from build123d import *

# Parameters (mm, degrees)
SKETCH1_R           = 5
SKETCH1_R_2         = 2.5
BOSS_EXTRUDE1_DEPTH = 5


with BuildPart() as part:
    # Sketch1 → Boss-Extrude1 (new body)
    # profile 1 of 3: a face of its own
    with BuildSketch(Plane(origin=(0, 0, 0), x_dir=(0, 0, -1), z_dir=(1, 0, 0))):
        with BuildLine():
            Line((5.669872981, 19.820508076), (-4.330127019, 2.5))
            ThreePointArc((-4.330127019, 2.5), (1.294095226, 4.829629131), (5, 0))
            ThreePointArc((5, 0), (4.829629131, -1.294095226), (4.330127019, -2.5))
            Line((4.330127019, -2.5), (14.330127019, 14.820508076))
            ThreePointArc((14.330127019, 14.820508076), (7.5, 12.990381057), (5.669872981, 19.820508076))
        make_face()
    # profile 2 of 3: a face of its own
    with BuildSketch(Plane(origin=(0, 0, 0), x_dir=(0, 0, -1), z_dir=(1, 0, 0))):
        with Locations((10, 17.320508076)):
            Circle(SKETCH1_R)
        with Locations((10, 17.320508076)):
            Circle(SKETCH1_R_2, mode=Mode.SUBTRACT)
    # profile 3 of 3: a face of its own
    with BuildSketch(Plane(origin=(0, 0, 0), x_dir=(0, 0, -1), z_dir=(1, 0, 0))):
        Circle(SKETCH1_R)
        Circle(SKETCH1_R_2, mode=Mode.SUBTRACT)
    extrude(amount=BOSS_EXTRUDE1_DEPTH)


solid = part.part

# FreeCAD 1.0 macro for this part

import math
import FreeCAD as App
import Part
import Sketcher
Q = App.Units.Quantity

doc = App.newDocument("Part")
params = doc.addObject("Spreadsheet::Sheet", "Params")
for row, (alias, value) in enumerate([
    ("sketch1_diameter", "5 mm"),
    ("sketch1_radius", "5 mm"),
    ("sketch1_length", "20 mm"),
    ("pad1_length", "5 mm"),
], start=1):
    params.set(f"A{row}", alias)
    params.set(f"B{row}", "=" + value)
    params.setAlias(f"B{row}", alias)

body = doc.addObject("PartDesign::Body", "Body")

# Sketch on YZ plane
sketch1 = body.newObject("Sketcher::SketchObject", "Sketch")
sketch1.AttachmentSupport = (doc.getObject("YZ_Plane"), [""])
sketch1.MapMode = "FlatFace"
sketch1.addGeometry([
    Part.LineSegment(App.Vector(19.820508, -5.669873, 0), App.Vector(2.5, 4.330127, 0)),  # 0
    Part.ArcOfCircle(Part.Circle(App.Vector(0, 0, 0), App.Vector(0, 0, 1), 5), math.radians(60), math.radians(240)),  # 1
    Part.LineSegment(App.Vector(-2.5, -4.330127, 0), App.Vector(14.820508, -14.330127, 0)),  # 2
    Part.ArcOfCircle(Part.Circle(App.Vector(17.320508, -10, 0), App.Vector(0, 0, 1), 5), math.radians(-120), math.radians(60)),  # 3
    Part.Circle(App.Vector(0, 0, 0), App.Vector(0, 0, 1), 2.5),  # 4
    Part.Circle(App.Vector(17.320508, -10, 0), App.Vector(0, 0, 1), 2.5),  # 5
], False)
sketch1.addConstraint([
    Sketcher.Constraint("Tangent", 0, 2, 1, 1),
    Sketcher.Constraint("Tangent", 1, 2, 2, 1),
    Sketcher.Constraint("Tangent", 2, 2, 3, 1),
    Sketcher.Constraint("Tangent", 3, 2, 0, 1),
    Sketcher.Constraint("Coincident", 1, 3, -1, 1),
    Sketcher.Constraint("Coincident", 4, 3, -1, 1),
    Sketcher.Constraint("Coincident", 5, 3, 3, 3),
    Sketcher.Constraint("Equal", 1, 3),
    Sketcher.Constraint("Equal", 4, 5),
    Sketcher.Constraint("Diameter", 4, 5.0),
    Sketcher.Constraint("Radius", 1, 5.0),
    Sketcher.Constraint("Angle", 0, Q("150 deg")),
    Sketcher.Constraint("Distance", 0, 20.0),
])
sketch1.setExpression("Constraints[9]", "Params.sketch1_diameter")
sketch1.setExpression("Constraints[10]", "Params.sketch1_radius")
sketch1.setExpression("Constraints[12]", "Params.sketch1_length")
pad1 = body.newObject("PartDesign::Pad", "Pad")
pad1.Profile = sketch1
pad1.setExpression("Length", "Params.pad1_length")

doc.recompute()
